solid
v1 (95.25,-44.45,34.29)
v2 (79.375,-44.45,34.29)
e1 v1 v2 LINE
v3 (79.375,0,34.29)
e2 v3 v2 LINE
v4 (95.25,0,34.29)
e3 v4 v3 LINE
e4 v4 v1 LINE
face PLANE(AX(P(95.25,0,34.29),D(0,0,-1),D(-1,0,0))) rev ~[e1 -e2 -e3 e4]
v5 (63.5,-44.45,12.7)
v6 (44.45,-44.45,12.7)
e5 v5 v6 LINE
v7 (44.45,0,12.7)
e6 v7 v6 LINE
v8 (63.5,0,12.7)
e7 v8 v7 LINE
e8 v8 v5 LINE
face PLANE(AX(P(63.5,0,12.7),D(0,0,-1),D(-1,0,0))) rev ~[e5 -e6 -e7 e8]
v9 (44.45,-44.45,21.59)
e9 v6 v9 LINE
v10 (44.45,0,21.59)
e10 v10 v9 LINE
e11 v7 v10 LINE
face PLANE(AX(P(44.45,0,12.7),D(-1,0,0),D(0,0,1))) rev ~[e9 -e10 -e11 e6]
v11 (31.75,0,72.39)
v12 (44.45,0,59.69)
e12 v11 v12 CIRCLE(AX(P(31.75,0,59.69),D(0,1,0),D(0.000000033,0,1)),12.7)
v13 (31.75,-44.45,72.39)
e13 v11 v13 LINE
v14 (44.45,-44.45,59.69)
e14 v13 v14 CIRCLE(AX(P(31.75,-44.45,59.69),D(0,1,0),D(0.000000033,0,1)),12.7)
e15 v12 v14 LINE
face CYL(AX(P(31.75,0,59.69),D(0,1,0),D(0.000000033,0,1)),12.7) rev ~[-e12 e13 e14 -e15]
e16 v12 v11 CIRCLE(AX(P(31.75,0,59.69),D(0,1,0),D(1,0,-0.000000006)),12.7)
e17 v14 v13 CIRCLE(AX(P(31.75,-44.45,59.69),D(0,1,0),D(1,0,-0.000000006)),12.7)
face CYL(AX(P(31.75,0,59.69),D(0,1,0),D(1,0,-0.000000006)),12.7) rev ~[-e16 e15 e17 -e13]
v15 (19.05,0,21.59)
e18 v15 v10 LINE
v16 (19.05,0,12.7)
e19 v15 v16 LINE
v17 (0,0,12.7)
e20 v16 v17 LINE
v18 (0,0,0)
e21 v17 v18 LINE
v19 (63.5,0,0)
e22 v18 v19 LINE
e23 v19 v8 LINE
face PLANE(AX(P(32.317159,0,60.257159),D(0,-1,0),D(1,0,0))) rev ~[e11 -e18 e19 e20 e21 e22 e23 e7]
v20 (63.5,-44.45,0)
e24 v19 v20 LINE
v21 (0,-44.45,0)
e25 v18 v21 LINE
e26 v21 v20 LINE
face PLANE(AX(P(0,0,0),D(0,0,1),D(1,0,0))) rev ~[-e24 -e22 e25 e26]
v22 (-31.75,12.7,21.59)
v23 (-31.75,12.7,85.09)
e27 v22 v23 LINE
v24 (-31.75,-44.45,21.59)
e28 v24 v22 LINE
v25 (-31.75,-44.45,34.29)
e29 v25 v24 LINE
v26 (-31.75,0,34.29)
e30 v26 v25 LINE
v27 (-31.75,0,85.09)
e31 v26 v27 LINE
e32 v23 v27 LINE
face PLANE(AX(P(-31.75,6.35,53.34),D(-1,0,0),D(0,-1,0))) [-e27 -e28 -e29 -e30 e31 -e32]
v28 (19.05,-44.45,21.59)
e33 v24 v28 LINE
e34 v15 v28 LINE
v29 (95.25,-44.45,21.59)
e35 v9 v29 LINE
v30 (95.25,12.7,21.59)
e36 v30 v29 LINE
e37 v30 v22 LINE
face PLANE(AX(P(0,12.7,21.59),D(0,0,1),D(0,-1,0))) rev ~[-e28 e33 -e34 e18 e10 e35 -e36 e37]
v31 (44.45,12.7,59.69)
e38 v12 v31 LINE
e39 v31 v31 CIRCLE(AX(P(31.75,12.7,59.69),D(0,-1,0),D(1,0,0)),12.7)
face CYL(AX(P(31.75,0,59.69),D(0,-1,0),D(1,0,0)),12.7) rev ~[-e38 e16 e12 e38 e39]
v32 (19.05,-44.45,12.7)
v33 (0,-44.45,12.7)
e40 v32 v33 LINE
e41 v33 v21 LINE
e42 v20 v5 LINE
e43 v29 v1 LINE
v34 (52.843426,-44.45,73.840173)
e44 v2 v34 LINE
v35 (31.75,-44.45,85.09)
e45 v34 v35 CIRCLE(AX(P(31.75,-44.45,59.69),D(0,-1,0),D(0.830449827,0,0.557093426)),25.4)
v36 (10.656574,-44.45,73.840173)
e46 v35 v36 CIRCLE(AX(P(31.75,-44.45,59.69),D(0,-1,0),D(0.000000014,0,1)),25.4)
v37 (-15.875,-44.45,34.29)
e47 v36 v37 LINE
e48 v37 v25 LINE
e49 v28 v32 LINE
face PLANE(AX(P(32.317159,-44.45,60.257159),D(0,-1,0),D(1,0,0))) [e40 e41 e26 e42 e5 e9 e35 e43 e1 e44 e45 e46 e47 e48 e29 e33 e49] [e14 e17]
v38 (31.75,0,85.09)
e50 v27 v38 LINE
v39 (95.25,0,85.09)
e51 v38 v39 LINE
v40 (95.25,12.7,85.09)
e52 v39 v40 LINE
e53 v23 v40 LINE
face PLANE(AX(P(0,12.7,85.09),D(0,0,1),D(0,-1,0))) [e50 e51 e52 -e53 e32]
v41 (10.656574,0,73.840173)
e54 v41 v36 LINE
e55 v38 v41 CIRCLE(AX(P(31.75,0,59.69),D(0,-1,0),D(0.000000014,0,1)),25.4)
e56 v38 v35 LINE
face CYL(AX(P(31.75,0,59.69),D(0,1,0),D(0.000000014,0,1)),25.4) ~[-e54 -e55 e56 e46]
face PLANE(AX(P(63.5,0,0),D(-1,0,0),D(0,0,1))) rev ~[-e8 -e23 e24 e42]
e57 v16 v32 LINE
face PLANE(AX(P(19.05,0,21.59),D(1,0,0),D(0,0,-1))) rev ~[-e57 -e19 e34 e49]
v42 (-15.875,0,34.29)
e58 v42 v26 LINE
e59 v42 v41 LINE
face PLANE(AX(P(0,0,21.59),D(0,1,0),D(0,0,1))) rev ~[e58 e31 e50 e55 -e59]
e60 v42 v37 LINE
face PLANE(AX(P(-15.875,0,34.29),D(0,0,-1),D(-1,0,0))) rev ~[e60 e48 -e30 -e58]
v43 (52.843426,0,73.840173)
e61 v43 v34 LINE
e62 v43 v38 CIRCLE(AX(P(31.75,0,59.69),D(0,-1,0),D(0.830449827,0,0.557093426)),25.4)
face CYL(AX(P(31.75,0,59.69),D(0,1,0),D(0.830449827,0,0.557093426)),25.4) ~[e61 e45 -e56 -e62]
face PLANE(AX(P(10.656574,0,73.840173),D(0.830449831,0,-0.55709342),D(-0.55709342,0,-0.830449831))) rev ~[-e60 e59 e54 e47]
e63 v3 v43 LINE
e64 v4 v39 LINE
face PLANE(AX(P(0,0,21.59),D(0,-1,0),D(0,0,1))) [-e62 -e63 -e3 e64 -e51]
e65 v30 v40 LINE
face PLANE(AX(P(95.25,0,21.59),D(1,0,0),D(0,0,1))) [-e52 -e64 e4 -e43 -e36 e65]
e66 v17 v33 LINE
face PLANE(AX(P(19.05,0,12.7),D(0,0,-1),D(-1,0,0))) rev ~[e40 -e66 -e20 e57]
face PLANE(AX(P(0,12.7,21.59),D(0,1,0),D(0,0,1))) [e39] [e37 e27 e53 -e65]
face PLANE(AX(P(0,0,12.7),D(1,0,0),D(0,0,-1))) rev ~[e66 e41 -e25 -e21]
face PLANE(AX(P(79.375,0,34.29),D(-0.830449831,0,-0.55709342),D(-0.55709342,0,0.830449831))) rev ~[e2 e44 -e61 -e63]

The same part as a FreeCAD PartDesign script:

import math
import FreeCAD as App
import Part
import Sketcher

V = App.Vector
Q = App.Units.Quantity


def add_polygon(sketch, points):
    """Adds a closed chain of lines whose ends are joined by coincident constraints."""
    first, n = sketch.GeometryCount, len(points)
    for a, b in zip(points, points[1:] + points[:1]):
        sketch.addGeometry(Part.LineSegment(App.Vector(*a, 0), App.Vector(*b, 0)), False)
    for i in range(n):
        sketch.addConstraint(Sketcher.Constraint("Coincident", first + i, 2, first + (i + 1) % n, 1))

doc = App.newDocument("Part")
body = doc.addObject("PartDesign::Body", "Body")

sketch1 = body.newObject("Sketcher::SketchObject", "Sketch")
sketch1.AttachmentSupport = (doc.getObject("XZ_Plane"), [""])
sketch1.MapMode = "FlatFace"
sketch1.addGeometry([
    Part.LineSegment(V(0, 12.7, 0), V(0, 0, 0)),
    Part.LineSegment(V(0, 0, 0), V(63.5, 0, 0)),
    Part.LineSegment(V(63.5, 0, 0), V(63.5, 12.7, 0)),
    Part.LineSegment(V(63.5, 12.7, 0), V(44.45, 12.7, 0)),
    Part.LineSegment(V(44.45, 12.7, 0), V(44.45, 21.59, 0)),
    Part.LineSegment(V(44.45, 21.59, 0), V(95.25, 21.59, 0)),
    Part.LineSegment(V(95.25, 21.59, 0), V(95.25, 34.29, 0)),
    Part.LineSegment(V(95.25, 34.29, 0), V(79.375, 34.29, 0)),
    Part.LineSegment(V(79.375, 34.29, 0), V(52.843426, 73.840173, 0)),
    Part.ArcOfCircle(Part.Circle(V(31.75, 59.69, 0), V(0, 0, 1), 25.4), math.radians(33.855026), math.radians(90.000001)),
    Part.ArcOfCircle(Part.Circle(V(31.75, 59.69, 0), V(0, 0, 1), 25.4), math.radians(89.999999), math.radians(146.144974)),
    Part.LineSegment(V(10.656574, 73.840173, 0), V(-15.875, 34.29, 0)),
    Part.LineSegment(V(-15.875, 34.29, 0), V(-31.75, 34.29, 0)),
    Part.LineSegment(V(-31.75, 34.29, 0), V(-31.75, 21.59, 0)),
    Part.LineSegment(V(-31.75, 21.59, 0), V(19.05, 21.59, 0)),
    Part.LineSegment(V(19.05, 21.59, 0), V(19.05, 12.7, 0)),
    Part.LineSegment(V(19.05, 12.7, 0), V(0, 12.7, 0)),
    Part.ArcOfCircle(Part.Circle(V(31.75, 59.69, 0), V(0, 0, 1), 12.7), math.radians(0.000002), math.radians(89.999998)),
    Part.ArcOfCircle(Part.Circle(V(31.75, 59.69, 0), V(0, 0, 1), 12.7), math.radians(90), math.radians(360)),
], False)
sketch1.addConstraint([
    Sketcher.Constraint("Coincident", 0, 2, 1, 1),
    Sketcher.Constraint("Coincident", 1, 2, 2, 1),
    Sketcher.Constraint("Coincident", 2, 2, 3, 1),
    Sketcher.Constraint("Coincident", 3, 2, 4, 1),
    Sketcher.Constraint("Coincident", 4, 2, 5, 1),
    Sketcher.Constraint("Coincident", 5, 2, 6, 1),
    Sketcher.Constraint("Coincident", 6, 2, 7, 1),
    Sketcher.Constraint("Coincident", 7, 2, 8, 1),
    Sketcher.Constraint("Tangent", 8, 2, 9, 1),
    Sketcher.Constraint("Tangent", 9, 2, 10, 1),
    Sketcher.Constraint("Tangent", 10, 2, 11, 1),
    Sketcher.Constraint("Coincident", 11, 2, 12, 1),
    Sketcher.Constraint("Coincident", 12, 2, 13, 1),
    Sketcher.Constraint("Coincident", 13, 2, 14, 1),
    Sketcher.Constraint("Coincident", 14, 2, 15, 1),
    Sketcher.Constraint("Coincident", 15, 2, 16, 1),
    Sketcher.Constraint("Coincident", 16, 2, 0, 1),
    Sketcher.Constraint("Tangent", 17, 1, 18, 2),
    Sketcher.Constraint("Coincident", 18, 1, 17, 2),
    Sketcher.Constraint("Vertical", 0),
    Sketcher.Constraint("Horizontal", 1),
    Sketcher.Constraint("Vertical", 2),
    Sketcher.Constraint("Horizontal", 3),
    Sketcher.Constraint("Vertical", 4),
    Sketcher.Constraint("Horizontal", 5),
    Sketcher.Constraint("Vertical", 6),
    Sketcher.Constraint("Horizontal", 7),
    Sketcher.Constraint("Horizontal", 12),
    Sketcher.Constraint("Vertical", 13),
    Sketcher.Constraint("Horizontal", 14),
    Sketcher.Constraint("Vertical", 15),
    Sketcher.Constraint("Horizontal", 16),
    Sketcher.Constraint("Coincident", 0, 2, -1, 1),
    Sketcher.Constraint("Coincident", 17, 3, 9, 3),
    Sketcher.Constraint("Equal", 9, 10),
    Sketcher.Constraint("Horizontal", 8, 2, 10, 2),
    Sketcher.Constraint("Horizontal", 7, 2, 11, 2),
    Sketcher.Constraint("Horizontal", 5, 2, 13, 2),
    Sketcher.Constraint("Horizontal", 3, 2, 15, 2),
    Sketcher.Constraint("Horizontal", 18, 3, 17, 1),
    Sketcher.Constraint("Vertical", 18, 3, 9, 2),
    Sketcher.Constraint("Vertical", 4, 2, 17, 1),
    Sketcher.Constraint("Vertical", 9, 2, 18, 1),
    Sketcher.Constraint("Equal", 7, 12),
    Sketcher.Constraint("Equal", 5, 14),
    Sketcher.Constraint("Equal", 3, 16),
    Sketcher.Constraint("Equal", 2, 6),
    Sketcher.Constraint("Radius", 9, Q("1 in")),
    Sketcher.Constraint("Radius", 17, Q("0.5 in")),
    Sketcher.Constraint("DistanceX", 5, 1, 5, 2, Q("2 in")),
    Sketcher.Constraint("DistanceX", 1, 1, 1, 2, Q("2.5 in")),
    Sketcher.Constraint("DistanceY", 0, 2, 0, 1, Q("0.5 in")),
    Sketcher.Constraint("DistanceY", 11, 2, 17, 3, Q("1 in")),
    Sketcher.Constraint("DistanceY", 4, 1, 4, 2, Q("0.35 in")),
    Sketcher.Constraint("DistanceX", 7, 2, 7, 1, Q("0.625 in")),
])
pad1 = body.newObject("PartDesign::Pad", "Pad")
pad1.Profile = sketch1
pad1.Length = Q("1.75 in")

sketch2 = body.newObject("Sketcher::SketchObject", "Sketch001")
sketch2.AttachmentSupport = (doc.getObject("YZ_Plane"), [""])
sketch2.MapMode = "FlatFace"
add_polygon(sketch2, [(0, 85.09), (0, 21.59), (12.7, 21.59), (12.7, 85.09)])
sketch2.addConstraint([
    Sketcher.Constraint("Vertical", 0),
    Sketcher.Constraint("Horizontal", 1),
    Sketcher.Constraint("Vertical", 2),
    Sketcher.Constraint("Horizontal", 3),
    Sketcher.Constraint("PointOnObject", 0, 2, -2),
    Sketcher.Constraint("DistanceX", 1, 1, 1, 2, Q("0.5 in")),
    Sketcher.Constraint("DistanceY", 0, 2, 0, 1, Q("2.5 in")),
    Sketcher.Constraint("DistanceY", -1, 1, 0, 2, Q("0.85 in")),
])
pad2 = body.newObject("PartDesign::Pad", "Pad001")
pad2.Profile = sketch2
pad2.Length = Q("6.25 in")

sketch3 = body.newObject("Sketcher::SketchObject", "Sketch002")
sketch3.AttachmentSupport = (doc.getObject("XZ_Plane"), [""])
sketch3.MapMode = "FlatFace"
add_polygon(sketch3, [(95.25, 85.09), (95.25, 21.59), (158.75, 21.59), (158.75, 85.09)])
sketch3.addConstraint([
    Sketcher.Constraint("Vertical", 0),
    Sketcher.Constraint("Horizontal", 1),
    Sketcher.Constraint("Vertical", 2),
    Sketcher.Constraint("Horizontal", 3),
    Sketcher.Constraint("Equal", 3, 0),
    Sketcher.Constraint("DistanceX", 1, 1, 1, 2, Q("2.5 in")),
    Sketcher.Constraint("DistanceX", -1, 1, 0, 2, Q("3.75 in")),
    Sketcher.Constraint("DistanceY", -1, 1, 0, 2, Q("0.85 in")),
])
pocket1 = body.newObject("PartDesign::Pocket", "Pocket")
pocket1.Profile = sketch3
pocket1.Length = Q("2 in")

sketch4 = body.newObject("Sketcher::SketchObject", "Sketch003")
sketch4.AttachmentSupport = (doc.getObject("YZ_Plane"), [""])
sketch4.MapMode = "FlatFace"
add_polygon(sketch4, [(12.7, 85.09), (12.7, 21.59), (0, 21.59), (0, 85.09)])
sketch4.addConstraint([
    Sketcher.Constraint("Vertical", 0),
    Sketcher.Constraint("Horizontal", 1),
    Sketcher.Constraint("Vertical", 2),
    Sketcher.Constraint("Horizontal", 3),
    Sketcher.Constraint("PointOnObject", 1, 2, -2),
    Sketcher.Constraint("DistanceX", 1, 2, 1, 1, Q("0.5 in")),
    Sketcher.Constraint("DistanceY", 0, 2, 0, 1, Q("2.5 in")),
    Sketcher.Constraint("DistanceY", -1, 1, 0, 2, Q("0.85 in")),
])
pad3 = body.newObject("PartDesign::Pad", "Pad002")
pad3.Profile = sketch4
pad3.Length = Q("1.25 in")
pad3.Reversed = True

sketch5 = body.newObject("Sketcher::SketchObject", "Sketch004")
sketch5.AttachmentSupport = (doc.getObject("XZ_Plane"), [""])
sketch5.MapMode = "FlatFace"
sketch5.addGeometry(Part.Circle(V(31.75, 59.69, 0), V(0, 0, 1), 12.7), False)
sketch5.addConstraint([
    Sketcher.Constraint("Diameter", 0, Q("1 in")),
    Sketcher.Constraint("DistanceX", -1, 1, 0, 3, Q("1.25 in")),
    Sketcher.Constraint("DistanceY", -1, 1, 0, 3, Q("2.35 in")),
])
pocket2 = body.newObject("PartDesign::Pocket", "Pocket001")
pocket2.Profile = sketch5
pocket2.Length = Q("1 in")

doc.recompute()
